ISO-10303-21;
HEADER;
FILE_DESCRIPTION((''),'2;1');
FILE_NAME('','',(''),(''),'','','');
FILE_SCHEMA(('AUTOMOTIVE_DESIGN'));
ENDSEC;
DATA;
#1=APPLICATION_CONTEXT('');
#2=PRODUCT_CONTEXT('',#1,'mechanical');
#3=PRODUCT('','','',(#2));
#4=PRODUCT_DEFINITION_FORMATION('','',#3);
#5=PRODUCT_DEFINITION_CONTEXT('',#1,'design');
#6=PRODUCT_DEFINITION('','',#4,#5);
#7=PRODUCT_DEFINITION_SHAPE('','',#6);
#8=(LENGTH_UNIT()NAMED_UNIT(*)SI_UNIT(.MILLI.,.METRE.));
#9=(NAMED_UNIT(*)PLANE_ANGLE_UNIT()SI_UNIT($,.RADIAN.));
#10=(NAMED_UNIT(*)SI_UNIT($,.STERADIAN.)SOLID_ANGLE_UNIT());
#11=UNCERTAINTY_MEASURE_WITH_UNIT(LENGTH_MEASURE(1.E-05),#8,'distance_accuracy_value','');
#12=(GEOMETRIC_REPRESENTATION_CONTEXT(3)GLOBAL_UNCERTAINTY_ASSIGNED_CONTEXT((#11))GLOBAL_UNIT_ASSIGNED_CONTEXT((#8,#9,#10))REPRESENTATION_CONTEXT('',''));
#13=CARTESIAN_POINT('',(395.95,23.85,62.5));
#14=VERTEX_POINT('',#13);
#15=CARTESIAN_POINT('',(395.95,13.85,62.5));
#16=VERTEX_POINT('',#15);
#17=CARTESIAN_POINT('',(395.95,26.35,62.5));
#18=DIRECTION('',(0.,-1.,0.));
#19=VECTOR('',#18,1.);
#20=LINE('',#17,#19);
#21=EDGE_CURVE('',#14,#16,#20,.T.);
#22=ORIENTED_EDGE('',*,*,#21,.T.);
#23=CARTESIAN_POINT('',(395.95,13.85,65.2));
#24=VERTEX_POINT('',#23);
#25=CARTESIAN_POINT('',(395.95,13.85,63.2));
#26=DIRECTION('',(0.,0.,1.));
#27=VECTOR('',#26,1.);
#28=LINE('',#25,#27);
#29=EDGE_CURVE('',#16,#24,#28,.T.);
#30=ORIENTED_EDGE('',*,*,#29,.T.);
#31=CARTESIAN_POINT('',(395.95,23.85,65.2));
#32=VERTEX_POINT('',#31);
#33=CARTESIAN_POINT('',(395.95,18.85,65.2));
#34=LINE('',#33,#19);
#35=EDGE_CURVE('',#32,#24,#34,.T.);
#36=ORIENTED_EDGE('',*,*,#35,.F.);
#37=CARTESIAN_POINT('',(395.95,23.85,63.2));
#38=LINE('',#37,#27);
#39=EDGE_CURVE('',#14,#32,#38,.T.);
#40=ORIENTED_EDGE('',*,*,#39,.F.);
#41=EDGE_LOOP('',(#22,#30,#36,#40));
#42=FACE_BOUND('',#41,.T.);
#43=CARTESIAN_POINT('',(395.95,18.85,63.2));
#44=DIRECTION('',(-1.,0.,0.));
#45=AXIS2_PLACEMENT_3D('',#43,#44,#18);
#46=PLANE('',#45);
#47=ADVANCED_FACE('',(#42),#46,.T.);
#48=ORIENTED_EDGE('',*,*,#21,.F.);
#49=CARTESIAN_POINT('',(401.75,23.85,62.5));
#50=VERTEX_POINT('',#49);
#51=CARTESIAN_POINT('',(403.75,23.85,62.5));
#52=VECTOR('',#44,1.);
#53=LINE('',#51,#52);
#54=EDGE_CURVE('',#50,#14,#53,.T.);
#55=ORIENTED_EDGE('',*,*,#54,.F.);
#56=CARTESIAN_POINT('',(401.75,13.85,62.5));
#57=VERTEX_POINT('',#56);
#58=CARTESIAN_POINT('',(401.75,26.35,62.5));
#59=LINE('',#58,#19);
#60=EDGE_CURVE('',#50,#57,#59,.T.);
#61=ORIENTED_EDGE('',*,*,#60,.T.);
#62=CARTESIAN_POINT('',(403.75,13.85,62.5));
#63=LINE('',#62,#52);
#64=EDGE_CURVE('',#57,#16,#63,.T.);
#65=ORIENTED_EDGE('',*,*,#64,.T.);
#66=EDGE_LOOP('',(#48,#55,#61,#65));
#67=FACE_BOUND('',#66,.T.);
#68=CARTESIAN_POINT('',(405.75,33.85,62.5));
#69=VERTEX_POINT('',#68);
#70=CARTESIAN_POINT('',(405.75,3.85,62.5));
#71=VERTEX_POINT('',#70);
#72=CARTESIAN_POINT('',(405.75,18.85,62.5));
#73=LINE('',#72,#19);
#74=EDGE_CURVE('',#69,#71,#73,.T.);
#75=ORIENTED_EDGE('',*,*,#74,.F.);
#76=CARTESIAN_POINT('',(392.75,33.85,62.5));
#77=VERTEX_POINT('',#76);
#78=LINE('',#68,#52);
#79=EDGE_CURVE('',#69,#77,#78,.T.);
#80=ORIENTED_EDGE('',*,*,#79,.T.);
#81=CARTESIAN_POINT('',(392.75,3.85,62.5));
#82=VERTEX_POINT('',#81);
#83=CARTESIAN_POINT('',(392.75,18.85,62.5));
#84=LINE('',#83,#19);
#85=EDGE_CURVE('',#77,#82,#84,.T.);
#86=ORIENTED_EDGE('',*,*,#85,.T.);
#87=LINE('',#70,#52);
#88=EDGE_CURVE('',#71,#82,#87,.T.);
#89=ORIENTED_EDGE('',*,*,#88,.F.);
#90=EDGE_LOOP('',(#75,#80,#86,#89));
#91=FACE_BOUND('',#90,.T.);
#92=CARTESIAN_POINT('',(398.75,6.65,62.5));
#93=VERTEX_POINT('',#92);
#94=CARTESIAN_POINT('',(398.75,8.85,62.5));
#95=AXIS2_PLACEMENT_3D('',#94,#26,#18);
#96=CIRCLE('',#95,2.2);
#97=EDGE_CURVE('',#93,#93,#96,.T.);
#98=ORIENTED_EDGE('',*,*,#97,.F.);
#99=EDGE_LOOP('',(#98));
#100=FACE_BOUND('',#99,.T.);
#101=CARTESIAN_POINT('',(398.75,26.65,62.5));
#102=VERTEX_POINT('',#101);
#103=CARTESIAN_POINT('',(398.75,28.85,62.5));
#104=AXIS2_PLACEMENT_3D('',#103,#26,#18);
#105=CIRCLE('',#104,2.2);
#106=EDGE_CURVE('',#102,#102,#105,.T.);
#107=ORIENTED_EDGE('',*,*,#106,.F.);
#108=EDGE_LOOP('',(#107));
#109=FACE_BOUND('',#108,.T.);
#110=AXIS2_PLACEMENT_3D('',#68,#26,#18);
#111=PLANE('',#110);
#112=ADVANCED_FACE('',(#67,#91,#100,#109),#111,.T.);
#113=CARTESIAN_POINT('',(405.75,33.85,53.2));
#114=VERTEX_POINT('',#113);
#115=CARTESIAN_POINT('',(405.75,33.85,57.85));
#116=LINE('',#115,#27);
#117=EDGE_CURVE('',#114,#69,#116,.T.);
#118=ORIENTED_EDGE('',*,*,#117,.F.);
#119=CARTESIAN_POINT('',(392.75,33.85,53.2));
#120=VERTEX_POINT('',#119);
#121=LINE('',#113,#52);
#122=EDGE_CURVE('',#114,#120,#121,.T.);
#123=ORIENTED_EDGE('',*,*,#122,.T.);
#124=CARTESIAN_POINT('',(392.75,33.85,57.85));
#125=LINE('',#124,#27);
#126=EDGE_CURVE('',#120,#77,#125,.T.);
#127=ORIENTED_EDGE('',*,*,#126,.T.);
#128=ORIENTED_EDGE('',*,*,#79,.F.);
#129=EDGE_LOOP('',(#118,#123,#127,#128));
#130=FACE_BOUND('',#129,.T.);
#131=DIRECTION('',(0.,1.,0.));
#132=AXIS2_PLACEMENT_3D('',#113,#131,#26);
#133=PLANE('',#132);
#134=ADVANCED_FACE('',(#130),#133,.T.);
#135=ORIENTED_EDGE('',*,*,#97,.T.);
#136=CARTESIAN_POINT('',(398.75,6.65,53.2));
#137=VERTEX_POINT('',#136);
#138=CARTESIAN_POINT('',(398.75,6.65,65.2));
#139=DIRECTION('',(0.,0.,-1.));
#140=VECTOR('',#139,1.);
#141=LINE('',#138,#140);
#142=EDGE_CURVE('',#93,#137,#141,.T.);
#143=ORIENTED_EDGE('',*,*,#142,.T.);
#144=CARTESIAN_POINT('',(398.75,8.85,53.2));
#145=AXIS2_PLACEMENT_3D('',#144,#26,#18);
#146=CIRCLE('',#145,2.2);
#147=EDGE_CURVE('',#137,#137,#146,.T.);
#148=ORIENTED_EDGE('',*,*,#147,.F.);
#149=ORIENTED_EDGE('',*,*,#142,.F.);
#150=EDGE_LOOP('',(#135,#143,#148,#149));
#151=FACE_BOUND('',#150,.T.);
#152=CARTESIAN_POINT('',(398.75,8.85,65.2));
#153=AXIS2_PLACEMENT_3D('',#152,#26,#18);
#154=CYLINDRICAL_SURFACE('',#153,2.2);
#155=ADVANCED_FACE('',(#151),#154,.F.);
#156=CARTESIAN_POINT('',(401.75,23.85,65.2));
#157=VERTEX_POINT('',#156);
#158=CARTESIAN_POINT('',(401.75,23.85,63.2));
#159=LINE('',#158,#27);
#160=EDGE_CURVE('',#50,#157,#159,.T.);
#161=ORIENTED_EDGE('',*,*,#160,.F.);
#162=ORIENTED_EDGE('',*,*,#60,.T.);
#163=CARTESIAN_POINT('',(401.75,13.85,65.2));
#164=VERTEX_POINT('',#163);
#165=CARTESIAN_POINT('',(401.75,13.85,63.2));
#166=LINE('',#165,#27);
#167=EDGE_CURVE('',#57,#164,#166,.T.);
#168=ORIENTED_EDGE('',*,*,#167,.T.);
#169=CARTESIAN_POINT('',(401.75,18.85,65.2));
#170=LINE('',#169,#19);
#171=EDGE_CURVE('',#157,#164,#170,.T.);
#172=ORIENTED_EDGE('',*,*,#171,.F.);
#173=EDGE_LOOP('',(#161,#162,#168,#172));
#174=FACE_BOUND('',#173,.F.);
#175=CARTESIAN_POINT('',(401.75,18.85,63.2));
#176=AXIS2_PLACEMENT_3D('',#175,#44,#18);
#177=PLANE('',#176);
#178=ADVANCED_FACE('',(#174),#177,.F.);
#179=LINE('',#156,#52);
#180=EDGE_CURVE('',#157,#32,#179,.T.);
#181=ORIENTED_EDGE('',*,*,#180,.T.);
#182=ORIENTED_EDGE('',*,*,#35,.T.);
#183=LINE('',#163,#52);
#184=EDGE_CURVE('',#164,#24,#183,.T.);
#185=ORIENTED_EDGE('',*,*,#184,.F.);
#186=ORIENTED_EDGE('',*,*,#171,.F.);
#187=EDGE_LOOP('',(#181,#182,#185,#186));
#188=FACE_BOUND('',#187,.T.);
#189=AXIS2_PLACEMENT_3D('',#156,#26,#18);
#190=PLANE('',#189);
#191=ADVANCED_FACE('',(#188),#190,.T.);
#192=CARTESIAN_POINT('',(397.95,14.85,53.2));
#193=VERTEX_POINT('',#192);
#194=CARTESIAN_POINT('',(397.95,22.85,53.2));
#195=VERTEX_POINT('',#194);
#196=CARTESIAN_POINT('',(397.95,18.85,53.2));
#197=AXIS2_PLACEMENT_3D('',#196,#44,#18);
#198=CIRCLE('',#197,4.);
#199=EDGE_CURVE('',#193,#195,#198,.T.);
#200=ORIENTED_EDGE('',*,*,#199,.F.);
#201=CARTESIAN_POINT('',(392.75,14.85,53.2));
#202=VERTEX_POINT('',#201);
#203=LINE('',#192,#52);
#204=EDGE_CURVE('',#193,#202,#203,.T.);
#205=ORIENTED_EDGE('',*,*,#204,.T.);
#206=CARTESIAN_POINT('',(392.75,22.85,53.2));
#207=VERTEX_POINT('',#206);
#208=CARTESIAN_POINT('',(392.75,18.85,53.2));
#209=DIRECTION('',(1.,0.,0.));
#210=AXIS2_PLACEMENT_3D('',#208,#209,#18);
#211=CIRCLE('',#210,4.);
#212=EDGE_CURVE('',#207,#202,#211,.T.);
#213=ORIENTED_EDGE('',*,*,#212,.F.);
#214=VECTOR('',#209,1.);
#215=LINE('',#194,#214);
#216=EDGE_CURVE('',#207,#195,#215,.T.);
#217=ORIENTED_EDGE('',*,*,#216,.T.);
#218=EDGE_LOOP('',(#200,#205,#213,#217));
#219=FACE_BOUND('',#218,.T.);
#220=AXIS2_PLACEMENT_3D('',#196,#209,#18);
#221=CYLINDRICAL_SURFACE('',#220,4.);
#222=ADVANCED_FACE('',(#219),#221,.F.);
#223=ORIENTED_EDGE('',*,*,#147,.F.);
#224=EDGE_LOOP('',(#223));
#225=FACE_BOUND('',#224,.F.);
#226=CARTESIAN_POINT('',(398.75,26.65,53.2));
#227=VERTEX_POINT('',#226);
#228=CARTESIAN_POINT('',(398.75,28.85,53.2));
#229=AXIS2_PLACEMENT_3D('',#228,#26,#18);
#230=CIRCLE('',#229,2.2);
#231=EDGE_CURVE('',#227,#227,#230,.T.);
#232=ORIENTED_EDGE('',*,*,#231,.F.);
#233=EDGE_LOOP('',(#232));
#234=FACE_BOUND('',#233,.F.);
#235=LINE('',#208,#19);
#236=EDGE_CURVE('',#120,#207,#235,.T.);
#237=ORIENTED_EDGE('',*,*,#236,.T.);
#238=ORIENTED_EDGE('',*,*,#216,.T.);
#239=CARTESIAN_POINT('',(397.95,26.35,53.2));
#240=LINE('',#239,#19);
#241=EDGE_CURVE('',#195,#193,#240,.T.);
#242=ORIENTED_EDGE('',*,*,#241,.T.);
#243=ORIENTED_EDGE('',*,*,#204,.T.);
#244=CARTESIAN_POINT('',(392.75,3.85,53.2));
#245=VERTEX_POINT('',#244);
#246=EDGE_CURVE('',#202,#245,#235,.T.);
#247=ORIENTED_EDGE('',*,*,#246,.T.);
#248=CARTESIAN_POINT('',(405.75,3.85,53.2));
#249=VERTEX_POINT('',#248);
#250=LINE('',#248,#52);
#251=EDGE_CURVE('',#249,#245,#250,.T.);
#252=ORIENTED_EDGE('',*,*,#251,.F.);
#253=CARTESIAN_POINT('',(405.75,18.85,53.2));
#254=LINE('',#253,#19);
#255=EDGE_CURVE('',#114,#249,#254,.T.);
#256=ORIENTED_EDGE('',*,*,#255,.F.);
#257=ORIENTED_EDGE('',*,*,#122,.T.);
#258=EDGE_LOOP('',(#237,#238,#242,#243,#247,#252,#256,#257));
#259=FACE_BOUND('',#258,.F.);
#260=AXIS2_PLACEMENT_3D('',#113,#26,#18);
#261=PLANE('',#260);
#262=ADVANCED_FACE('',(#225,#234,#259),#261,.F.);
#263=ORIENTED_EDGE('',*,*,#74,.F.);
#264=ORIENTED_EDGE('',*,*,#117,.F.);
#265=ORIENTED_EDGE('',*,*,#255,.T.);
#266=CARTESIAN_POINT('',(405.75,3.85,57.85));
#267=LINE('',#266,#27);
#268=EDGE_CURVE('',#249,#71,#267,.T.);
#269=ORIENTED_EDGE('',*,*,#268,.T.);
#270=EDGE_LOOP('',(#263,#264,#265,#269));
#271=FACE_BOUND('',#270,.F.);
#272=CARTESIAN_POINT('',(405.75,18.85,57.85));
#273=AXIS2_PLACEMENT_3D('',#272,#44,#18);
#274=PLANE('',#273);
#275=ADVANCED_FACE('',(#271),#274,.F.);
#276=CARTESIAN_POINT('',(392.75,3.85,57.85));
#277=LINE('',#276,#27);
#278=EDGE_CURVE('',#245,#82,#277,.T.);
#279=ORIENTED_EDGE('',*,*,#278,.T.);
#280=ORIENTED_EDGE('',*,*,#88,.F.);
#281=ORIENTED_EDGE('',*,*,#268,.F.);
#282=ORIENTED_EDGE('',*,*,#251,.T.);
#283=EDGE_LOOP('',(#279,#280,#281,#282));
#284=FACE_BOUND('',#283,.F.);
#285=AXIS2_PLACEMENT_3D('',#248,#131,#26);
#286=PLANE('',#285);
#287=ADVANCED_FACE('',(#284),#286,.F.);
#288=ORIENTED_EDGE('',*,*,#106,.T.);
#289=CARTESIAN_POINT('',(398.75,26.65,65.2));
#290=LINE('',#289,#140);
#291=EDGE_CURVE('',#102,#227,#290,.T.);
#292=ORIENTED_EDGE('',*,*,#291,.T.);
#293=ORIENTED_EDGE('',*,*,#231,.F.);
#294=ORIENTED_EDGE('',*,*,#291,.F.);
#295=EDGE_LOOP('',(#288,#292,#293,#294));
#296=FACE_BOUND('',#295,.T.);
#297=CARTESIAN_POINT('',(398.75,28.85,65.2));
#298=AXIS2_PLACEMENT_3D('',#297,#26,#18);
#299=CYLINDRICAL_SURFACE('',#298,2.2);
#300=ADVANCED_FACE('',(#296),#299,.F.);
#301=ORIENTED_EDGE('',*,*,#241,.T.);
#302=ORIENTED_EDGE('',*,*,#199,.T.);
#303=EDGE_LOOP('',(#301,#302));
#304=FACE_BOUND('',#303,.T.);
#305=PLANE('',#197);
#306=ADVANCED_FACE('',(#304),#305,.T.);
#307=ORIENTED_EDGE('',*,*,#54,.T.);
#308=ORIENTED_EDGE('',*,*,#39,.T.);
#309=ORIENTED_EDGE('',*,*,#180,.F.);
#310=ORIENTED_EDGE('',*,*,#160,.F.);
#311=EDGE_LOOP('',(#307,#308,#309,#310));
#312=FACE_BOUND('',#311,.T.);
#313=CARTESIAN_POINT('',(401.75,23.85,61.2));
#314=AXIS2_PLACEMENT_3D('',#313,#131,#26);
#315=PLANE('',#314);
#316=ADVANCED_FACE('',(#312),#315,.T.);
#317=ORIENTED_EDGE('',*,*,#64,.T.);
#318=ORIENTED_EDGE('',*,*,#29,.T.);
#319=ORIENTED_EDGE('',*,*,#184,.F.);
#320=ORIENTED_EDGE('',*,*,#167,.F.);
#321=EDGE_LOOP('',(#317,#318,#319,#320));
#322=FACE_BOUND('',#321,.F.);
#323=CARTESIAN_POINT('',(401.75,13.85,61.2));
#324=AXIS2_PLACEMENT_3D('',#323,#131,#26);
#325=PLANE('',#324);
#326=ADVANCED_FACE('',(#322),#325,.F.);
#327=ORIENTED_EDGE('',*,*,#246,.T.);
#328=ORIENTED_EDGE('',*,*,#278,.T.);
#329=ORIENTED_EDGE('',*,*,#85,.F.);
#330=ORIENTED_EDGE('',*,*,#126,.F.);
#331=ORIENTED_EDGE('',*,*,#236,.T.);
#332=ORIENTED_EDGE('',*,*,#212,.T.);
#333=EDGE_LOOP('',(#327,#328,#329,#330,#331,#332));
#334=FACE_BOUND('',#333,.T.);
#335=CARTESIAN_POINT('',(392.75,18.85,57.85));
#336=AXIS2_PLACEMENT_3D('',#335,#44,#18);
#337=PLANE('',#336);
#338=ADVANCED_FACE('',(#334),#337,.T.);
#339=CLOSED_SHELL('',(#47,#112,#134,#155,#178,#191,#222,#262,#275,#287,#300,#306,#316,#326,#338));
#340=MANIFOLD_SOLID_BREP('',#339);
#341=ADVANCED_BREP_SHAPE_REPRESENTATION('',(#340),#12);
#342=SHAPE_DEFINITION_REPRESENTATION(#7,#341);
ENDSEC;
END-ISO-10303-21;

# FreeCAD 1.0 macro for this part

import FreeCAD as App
import Part
import Sketcher

V = App.Vector
Q = App.Units.Quantity


def add_polygon(sketch, points):
    """Adds a closed chain of lines whose ends are joined by coincident constraints."""
    first, n = sketch.GeometryCount, len(points)
    for a, b in zip(points, points[1:] + points[:1]):
        sketch.addGeometry(Part.LineSegment(App.Vector(*a, 0), App.Vector(*b, 0)), False)
    for i in range(n):
        sketch.addConstraint(Sketcher.Constraint("Coincident", first + i, 2, first + (i + 1) % n, 1))

doc = App.newDocument("Part")
params = doc.addObject("Spreadsheet::Sheet", "Params")
for row, (alias, value) in enumerate([
    ("sketch1_width", "10 mm"),
    ("sketch1_height", "4 mm"),
    ("pad1_length", "5.8 mm"),
    ("sketch2_diameter", "4.4 mm"),
    ("pad2_length", "25 mm"),
    ("sketch3_diameter", "4.4 mm"),
    ("pad3_length", "25 mm"),
    ("sketch4_diameter", "8 mm"),
    ("pad4_length", "6 mm"),
    ("sketch5_width", "30 mm"),
    ("sketch5_height", "9.3 mm"),
    ("pad5_length", "13 mm"),
], start=1):
    params.set(f"A{row}", alias)
    params.set(f"B{row}", "=" + value)
    params.setAlias(f"B{row}", alias)

body = doc.addObject("PartDesign::Body", "Body")

# Sketch on XY plane
sketch1 = body.newObject("Sketcher::SketchObject", "Sketch")
sketch1.AttachmentSupport = (doc.getObject("XY_Plane"), [""])
sketch1.MapMode = "FlatFace"
sketch1.AttachmentOffset = App.Placement(V(0, 0, 2), App.Rotation())
add_polygon(sketch1, [(-5, 12), (-5, 8), (5, 8), (5, 12)])  # lines 0-3
sketch1.addConstraint([
    Sketcher.Constraint("Vertical", 0),
    Sketcher.Constraint("Horizontal", 1),
    Sketcher.Constraint("Vertical", 2),
    Sketcher.Constraint("Horizontal", 3),
    Sketcher.Constraint("DistanceX", 1, 1, 1, 2, Q("10 mm")),
    Sketcher.Constraint("DistanceY", 0, 2, 0, 1, Q("4 mm")),
    Sketcher.Constraint("DistanceX", 0, 2, -1, 1, Q("5 mm")),
    Sketcher.Constraint("DistanceY", -1, 1, 0, 2, Q("8 mm")),
])
sketch1.setExpression("Constraints[8]", "Params.sketch1_width")
sketch1.setExpression("Constraints[9]", "Params.sketch1_height")
pad1 = body.newObject("PartDesign::Pad", "Pad")
pad1.Profile = sketch1
pad1.setExpression("Length", "Params.pad1_length")
body2 = doc.addObject("PartDesign::Body", "Body001")

# Sketch on XZ plane
sketch2 = body2.newObject("Sketcher::SketchObject", "Sketch001")
sketch2.AttachmentSupport = (doc.getObject("XZ_Plane001"), [""])
sketch2.MapMode = "FlatFace"
sketch2.AttachmentOffset = App.Placement(V(0, 0, -12), App.Rotation())
sketch2.addGeometry(Part.Circle(V(-10, 5, 0), V(0, 0, 1), 2.2), False)
sketch2.addConstraint([
    Sketcher.Constraint("Diameter", 0, Q("4.4 mm")),
    Sketcher.Constraint("DistanceX", 0, 3, -1, 1, Q("10 mm")),
    Sketcher.Constraint("DistanceY", -1, 1, 0, 3, Q("5 mm")),
])
sketch2.setExpression("Constraints[0]", "Params.sketch2_diameter")
pad2 = body2.newObject("PartDesign::Pad", "Pad001")
pad2.Profile = sketch2
pad2.setExpression("Length", "Params.pad2_length")
body3 = doc.addObject("PartDesign::Body", "Body002")

# Sketch on XZ plane
sketch3 = body3.newObject("Sketcher::SketchObject", "Sketch002")
sketch3.AttachmentSupport = (doc.getObject("XZ_Plane002"), [""])
sketch3.MapMode = "FlatFace"
sketch3.AttachmentOffset = App.Placement(V(0, 0, -12), App.Rotation())
sketch3.addGeometry(Part.Circle(V(10, 5, 0), V(0, 0, 1), 2.2), False)
sketch3.addConstraint([
    Sketcher.Constraint("Diameter", 0, Q("4.4 mm")),
    Sketcher.Constraint("DistanceX", -1, 1, 0, 3, Q("10 mm")),
    Sketcher.Constraint("DistanceY", -1, 1, 0, 3, Q("5 mm")),
])
sketch3.setExpression("Constraints[0]", "Params.sketch3_diameter")
pad3 = body3.newObject("PartDesign::Pad", "Pad002")
pad3.Profile = sketch3
pad3.setExpression("Length", "Params.pad3_length")
body4 = doc.addObject("PartDesign::Body", "Body003")

# Sketch on XY plane
sketch4 = body4.newObject("Sketcher::SketchObject", "Sketch003")
sketch4.AttachmentSupport = (doc.getObject("XY_Plane003"), [""])
sketch4.MapMode = "FlatFace"
sketch4.AttachmentOffset = App.Placement(V(0, 0, 5.8), App.Rotation())
sketch4.addGeometry(Part.Circle(V(0, 0, 0), V(0, 0, 1), 4), False)
sketch4.addConstraint([
    Sketcher.Constraint("Coincident", 0, 3, -1, 1),
    Sketcher.Constraint("Diameter", 0, Q("8 mm")),
])
sketch4.setExpression("Constraints[1]", "Params.sketch4_diameter")
pad4 = body4.newObject("PartDesign::Pad", "Pad003")
pad4.Profile = sketch4
pad4.setExpression("Length", "Params.pad4_length")
body5 = doc.addObject("PartDesign::Body", "Body004")

# Sketch on XY plane
sketch5 = body5.newObject("Sketcher::SketchObject", "Sketch004")
sketch5.AttachmentSupport = (doc.getObject("XY_Plane004"), [""])
sketch5.MapMode = "FlatFace"
sketch5.AttachmentOffset = App.Placement(V(0, 0, -2), App.Rotation())
add_polygon(sketch5, [(-15, 9), (-15, 0), (15, 0), (15, 9)])  # lines 0-3
sketch5.addConstraint([
    Sketcher.Constraint("Vertical", 0),
    Sketcher.Constraint("Horizontal", 1),
    Sketcher.Constraint("Vertical", 2),
    Sketcher.Constraint("Horizontal", 3),
    Sketcher.Constraint("Symmetric", 0, 2, 1, 2, -1, 1),
    Sketcher.Constraint("DistanceX", 1, 1, 1, 2, Q("30 mm")),
    Sketcher.Constraint("DistanceY", 0, 2, 0, 1, Q("9.3 mm")),
])
sketch5.setExpression("Constraints[9]", "Params.sketch5_width")
sketch5.setExpression("Constraints[10]", "Params.sketch5_height")
pad5 = body5.newObject("PartDesign::Pad", "Pad004")
pad5.Profile = sketch5
pad5.setExpression("Length", "Params.pad5_length")
doc.recompute()

boolean = body5.newObject("PartDesign::Boolean", "Boolean")
boolean.Type = "Cut"
boolean.addObjects([body4])
doc.recompute()

boolean2 = body5.newObject("PartDesign::Boolean", "Boolean001")
boolean2.Type = "Cut"
boolean2.addObjects([body3])
doc.recompute()

boolean3 = body5.newObject("PartDesign::Boolean", "Boolean002")
boolean3.Type = "Cut"
boolean3.addObjects([body2])
doc.recompute()

boolean4 = body5.newObject("PartDesign::Boolean", "Boolean003")
boolean4.Type = "Fuse"
boolean4.addObjects([body])
body6 = doc.addObject("PartDesign::Body", "Body005")
doc.recompute()

body5.Placement = App.Placement(V(0, 0, 0), App.Rotation(V(1, 0, 0), 90))
boolean5 = body6.newObject("PartDesign::Boolean", "Boolean004")
boolean5.Type = "Fuse"
boolean5.addObjects([body5])
body7 = doc.addObject("PartDesign::Body", "Body006")
doc.recompute()

body6.Placement = App.Placement(V(403.75, 18.85, 53.2), App.Rotation(V(0, 0, 1), 270))
boolean6 = body7.newObject("PartDesign::Boolean", "Boolean005")
boolean6.Type = "Fuse"
boolean6.addObjects([body6])

doc.recompute()
